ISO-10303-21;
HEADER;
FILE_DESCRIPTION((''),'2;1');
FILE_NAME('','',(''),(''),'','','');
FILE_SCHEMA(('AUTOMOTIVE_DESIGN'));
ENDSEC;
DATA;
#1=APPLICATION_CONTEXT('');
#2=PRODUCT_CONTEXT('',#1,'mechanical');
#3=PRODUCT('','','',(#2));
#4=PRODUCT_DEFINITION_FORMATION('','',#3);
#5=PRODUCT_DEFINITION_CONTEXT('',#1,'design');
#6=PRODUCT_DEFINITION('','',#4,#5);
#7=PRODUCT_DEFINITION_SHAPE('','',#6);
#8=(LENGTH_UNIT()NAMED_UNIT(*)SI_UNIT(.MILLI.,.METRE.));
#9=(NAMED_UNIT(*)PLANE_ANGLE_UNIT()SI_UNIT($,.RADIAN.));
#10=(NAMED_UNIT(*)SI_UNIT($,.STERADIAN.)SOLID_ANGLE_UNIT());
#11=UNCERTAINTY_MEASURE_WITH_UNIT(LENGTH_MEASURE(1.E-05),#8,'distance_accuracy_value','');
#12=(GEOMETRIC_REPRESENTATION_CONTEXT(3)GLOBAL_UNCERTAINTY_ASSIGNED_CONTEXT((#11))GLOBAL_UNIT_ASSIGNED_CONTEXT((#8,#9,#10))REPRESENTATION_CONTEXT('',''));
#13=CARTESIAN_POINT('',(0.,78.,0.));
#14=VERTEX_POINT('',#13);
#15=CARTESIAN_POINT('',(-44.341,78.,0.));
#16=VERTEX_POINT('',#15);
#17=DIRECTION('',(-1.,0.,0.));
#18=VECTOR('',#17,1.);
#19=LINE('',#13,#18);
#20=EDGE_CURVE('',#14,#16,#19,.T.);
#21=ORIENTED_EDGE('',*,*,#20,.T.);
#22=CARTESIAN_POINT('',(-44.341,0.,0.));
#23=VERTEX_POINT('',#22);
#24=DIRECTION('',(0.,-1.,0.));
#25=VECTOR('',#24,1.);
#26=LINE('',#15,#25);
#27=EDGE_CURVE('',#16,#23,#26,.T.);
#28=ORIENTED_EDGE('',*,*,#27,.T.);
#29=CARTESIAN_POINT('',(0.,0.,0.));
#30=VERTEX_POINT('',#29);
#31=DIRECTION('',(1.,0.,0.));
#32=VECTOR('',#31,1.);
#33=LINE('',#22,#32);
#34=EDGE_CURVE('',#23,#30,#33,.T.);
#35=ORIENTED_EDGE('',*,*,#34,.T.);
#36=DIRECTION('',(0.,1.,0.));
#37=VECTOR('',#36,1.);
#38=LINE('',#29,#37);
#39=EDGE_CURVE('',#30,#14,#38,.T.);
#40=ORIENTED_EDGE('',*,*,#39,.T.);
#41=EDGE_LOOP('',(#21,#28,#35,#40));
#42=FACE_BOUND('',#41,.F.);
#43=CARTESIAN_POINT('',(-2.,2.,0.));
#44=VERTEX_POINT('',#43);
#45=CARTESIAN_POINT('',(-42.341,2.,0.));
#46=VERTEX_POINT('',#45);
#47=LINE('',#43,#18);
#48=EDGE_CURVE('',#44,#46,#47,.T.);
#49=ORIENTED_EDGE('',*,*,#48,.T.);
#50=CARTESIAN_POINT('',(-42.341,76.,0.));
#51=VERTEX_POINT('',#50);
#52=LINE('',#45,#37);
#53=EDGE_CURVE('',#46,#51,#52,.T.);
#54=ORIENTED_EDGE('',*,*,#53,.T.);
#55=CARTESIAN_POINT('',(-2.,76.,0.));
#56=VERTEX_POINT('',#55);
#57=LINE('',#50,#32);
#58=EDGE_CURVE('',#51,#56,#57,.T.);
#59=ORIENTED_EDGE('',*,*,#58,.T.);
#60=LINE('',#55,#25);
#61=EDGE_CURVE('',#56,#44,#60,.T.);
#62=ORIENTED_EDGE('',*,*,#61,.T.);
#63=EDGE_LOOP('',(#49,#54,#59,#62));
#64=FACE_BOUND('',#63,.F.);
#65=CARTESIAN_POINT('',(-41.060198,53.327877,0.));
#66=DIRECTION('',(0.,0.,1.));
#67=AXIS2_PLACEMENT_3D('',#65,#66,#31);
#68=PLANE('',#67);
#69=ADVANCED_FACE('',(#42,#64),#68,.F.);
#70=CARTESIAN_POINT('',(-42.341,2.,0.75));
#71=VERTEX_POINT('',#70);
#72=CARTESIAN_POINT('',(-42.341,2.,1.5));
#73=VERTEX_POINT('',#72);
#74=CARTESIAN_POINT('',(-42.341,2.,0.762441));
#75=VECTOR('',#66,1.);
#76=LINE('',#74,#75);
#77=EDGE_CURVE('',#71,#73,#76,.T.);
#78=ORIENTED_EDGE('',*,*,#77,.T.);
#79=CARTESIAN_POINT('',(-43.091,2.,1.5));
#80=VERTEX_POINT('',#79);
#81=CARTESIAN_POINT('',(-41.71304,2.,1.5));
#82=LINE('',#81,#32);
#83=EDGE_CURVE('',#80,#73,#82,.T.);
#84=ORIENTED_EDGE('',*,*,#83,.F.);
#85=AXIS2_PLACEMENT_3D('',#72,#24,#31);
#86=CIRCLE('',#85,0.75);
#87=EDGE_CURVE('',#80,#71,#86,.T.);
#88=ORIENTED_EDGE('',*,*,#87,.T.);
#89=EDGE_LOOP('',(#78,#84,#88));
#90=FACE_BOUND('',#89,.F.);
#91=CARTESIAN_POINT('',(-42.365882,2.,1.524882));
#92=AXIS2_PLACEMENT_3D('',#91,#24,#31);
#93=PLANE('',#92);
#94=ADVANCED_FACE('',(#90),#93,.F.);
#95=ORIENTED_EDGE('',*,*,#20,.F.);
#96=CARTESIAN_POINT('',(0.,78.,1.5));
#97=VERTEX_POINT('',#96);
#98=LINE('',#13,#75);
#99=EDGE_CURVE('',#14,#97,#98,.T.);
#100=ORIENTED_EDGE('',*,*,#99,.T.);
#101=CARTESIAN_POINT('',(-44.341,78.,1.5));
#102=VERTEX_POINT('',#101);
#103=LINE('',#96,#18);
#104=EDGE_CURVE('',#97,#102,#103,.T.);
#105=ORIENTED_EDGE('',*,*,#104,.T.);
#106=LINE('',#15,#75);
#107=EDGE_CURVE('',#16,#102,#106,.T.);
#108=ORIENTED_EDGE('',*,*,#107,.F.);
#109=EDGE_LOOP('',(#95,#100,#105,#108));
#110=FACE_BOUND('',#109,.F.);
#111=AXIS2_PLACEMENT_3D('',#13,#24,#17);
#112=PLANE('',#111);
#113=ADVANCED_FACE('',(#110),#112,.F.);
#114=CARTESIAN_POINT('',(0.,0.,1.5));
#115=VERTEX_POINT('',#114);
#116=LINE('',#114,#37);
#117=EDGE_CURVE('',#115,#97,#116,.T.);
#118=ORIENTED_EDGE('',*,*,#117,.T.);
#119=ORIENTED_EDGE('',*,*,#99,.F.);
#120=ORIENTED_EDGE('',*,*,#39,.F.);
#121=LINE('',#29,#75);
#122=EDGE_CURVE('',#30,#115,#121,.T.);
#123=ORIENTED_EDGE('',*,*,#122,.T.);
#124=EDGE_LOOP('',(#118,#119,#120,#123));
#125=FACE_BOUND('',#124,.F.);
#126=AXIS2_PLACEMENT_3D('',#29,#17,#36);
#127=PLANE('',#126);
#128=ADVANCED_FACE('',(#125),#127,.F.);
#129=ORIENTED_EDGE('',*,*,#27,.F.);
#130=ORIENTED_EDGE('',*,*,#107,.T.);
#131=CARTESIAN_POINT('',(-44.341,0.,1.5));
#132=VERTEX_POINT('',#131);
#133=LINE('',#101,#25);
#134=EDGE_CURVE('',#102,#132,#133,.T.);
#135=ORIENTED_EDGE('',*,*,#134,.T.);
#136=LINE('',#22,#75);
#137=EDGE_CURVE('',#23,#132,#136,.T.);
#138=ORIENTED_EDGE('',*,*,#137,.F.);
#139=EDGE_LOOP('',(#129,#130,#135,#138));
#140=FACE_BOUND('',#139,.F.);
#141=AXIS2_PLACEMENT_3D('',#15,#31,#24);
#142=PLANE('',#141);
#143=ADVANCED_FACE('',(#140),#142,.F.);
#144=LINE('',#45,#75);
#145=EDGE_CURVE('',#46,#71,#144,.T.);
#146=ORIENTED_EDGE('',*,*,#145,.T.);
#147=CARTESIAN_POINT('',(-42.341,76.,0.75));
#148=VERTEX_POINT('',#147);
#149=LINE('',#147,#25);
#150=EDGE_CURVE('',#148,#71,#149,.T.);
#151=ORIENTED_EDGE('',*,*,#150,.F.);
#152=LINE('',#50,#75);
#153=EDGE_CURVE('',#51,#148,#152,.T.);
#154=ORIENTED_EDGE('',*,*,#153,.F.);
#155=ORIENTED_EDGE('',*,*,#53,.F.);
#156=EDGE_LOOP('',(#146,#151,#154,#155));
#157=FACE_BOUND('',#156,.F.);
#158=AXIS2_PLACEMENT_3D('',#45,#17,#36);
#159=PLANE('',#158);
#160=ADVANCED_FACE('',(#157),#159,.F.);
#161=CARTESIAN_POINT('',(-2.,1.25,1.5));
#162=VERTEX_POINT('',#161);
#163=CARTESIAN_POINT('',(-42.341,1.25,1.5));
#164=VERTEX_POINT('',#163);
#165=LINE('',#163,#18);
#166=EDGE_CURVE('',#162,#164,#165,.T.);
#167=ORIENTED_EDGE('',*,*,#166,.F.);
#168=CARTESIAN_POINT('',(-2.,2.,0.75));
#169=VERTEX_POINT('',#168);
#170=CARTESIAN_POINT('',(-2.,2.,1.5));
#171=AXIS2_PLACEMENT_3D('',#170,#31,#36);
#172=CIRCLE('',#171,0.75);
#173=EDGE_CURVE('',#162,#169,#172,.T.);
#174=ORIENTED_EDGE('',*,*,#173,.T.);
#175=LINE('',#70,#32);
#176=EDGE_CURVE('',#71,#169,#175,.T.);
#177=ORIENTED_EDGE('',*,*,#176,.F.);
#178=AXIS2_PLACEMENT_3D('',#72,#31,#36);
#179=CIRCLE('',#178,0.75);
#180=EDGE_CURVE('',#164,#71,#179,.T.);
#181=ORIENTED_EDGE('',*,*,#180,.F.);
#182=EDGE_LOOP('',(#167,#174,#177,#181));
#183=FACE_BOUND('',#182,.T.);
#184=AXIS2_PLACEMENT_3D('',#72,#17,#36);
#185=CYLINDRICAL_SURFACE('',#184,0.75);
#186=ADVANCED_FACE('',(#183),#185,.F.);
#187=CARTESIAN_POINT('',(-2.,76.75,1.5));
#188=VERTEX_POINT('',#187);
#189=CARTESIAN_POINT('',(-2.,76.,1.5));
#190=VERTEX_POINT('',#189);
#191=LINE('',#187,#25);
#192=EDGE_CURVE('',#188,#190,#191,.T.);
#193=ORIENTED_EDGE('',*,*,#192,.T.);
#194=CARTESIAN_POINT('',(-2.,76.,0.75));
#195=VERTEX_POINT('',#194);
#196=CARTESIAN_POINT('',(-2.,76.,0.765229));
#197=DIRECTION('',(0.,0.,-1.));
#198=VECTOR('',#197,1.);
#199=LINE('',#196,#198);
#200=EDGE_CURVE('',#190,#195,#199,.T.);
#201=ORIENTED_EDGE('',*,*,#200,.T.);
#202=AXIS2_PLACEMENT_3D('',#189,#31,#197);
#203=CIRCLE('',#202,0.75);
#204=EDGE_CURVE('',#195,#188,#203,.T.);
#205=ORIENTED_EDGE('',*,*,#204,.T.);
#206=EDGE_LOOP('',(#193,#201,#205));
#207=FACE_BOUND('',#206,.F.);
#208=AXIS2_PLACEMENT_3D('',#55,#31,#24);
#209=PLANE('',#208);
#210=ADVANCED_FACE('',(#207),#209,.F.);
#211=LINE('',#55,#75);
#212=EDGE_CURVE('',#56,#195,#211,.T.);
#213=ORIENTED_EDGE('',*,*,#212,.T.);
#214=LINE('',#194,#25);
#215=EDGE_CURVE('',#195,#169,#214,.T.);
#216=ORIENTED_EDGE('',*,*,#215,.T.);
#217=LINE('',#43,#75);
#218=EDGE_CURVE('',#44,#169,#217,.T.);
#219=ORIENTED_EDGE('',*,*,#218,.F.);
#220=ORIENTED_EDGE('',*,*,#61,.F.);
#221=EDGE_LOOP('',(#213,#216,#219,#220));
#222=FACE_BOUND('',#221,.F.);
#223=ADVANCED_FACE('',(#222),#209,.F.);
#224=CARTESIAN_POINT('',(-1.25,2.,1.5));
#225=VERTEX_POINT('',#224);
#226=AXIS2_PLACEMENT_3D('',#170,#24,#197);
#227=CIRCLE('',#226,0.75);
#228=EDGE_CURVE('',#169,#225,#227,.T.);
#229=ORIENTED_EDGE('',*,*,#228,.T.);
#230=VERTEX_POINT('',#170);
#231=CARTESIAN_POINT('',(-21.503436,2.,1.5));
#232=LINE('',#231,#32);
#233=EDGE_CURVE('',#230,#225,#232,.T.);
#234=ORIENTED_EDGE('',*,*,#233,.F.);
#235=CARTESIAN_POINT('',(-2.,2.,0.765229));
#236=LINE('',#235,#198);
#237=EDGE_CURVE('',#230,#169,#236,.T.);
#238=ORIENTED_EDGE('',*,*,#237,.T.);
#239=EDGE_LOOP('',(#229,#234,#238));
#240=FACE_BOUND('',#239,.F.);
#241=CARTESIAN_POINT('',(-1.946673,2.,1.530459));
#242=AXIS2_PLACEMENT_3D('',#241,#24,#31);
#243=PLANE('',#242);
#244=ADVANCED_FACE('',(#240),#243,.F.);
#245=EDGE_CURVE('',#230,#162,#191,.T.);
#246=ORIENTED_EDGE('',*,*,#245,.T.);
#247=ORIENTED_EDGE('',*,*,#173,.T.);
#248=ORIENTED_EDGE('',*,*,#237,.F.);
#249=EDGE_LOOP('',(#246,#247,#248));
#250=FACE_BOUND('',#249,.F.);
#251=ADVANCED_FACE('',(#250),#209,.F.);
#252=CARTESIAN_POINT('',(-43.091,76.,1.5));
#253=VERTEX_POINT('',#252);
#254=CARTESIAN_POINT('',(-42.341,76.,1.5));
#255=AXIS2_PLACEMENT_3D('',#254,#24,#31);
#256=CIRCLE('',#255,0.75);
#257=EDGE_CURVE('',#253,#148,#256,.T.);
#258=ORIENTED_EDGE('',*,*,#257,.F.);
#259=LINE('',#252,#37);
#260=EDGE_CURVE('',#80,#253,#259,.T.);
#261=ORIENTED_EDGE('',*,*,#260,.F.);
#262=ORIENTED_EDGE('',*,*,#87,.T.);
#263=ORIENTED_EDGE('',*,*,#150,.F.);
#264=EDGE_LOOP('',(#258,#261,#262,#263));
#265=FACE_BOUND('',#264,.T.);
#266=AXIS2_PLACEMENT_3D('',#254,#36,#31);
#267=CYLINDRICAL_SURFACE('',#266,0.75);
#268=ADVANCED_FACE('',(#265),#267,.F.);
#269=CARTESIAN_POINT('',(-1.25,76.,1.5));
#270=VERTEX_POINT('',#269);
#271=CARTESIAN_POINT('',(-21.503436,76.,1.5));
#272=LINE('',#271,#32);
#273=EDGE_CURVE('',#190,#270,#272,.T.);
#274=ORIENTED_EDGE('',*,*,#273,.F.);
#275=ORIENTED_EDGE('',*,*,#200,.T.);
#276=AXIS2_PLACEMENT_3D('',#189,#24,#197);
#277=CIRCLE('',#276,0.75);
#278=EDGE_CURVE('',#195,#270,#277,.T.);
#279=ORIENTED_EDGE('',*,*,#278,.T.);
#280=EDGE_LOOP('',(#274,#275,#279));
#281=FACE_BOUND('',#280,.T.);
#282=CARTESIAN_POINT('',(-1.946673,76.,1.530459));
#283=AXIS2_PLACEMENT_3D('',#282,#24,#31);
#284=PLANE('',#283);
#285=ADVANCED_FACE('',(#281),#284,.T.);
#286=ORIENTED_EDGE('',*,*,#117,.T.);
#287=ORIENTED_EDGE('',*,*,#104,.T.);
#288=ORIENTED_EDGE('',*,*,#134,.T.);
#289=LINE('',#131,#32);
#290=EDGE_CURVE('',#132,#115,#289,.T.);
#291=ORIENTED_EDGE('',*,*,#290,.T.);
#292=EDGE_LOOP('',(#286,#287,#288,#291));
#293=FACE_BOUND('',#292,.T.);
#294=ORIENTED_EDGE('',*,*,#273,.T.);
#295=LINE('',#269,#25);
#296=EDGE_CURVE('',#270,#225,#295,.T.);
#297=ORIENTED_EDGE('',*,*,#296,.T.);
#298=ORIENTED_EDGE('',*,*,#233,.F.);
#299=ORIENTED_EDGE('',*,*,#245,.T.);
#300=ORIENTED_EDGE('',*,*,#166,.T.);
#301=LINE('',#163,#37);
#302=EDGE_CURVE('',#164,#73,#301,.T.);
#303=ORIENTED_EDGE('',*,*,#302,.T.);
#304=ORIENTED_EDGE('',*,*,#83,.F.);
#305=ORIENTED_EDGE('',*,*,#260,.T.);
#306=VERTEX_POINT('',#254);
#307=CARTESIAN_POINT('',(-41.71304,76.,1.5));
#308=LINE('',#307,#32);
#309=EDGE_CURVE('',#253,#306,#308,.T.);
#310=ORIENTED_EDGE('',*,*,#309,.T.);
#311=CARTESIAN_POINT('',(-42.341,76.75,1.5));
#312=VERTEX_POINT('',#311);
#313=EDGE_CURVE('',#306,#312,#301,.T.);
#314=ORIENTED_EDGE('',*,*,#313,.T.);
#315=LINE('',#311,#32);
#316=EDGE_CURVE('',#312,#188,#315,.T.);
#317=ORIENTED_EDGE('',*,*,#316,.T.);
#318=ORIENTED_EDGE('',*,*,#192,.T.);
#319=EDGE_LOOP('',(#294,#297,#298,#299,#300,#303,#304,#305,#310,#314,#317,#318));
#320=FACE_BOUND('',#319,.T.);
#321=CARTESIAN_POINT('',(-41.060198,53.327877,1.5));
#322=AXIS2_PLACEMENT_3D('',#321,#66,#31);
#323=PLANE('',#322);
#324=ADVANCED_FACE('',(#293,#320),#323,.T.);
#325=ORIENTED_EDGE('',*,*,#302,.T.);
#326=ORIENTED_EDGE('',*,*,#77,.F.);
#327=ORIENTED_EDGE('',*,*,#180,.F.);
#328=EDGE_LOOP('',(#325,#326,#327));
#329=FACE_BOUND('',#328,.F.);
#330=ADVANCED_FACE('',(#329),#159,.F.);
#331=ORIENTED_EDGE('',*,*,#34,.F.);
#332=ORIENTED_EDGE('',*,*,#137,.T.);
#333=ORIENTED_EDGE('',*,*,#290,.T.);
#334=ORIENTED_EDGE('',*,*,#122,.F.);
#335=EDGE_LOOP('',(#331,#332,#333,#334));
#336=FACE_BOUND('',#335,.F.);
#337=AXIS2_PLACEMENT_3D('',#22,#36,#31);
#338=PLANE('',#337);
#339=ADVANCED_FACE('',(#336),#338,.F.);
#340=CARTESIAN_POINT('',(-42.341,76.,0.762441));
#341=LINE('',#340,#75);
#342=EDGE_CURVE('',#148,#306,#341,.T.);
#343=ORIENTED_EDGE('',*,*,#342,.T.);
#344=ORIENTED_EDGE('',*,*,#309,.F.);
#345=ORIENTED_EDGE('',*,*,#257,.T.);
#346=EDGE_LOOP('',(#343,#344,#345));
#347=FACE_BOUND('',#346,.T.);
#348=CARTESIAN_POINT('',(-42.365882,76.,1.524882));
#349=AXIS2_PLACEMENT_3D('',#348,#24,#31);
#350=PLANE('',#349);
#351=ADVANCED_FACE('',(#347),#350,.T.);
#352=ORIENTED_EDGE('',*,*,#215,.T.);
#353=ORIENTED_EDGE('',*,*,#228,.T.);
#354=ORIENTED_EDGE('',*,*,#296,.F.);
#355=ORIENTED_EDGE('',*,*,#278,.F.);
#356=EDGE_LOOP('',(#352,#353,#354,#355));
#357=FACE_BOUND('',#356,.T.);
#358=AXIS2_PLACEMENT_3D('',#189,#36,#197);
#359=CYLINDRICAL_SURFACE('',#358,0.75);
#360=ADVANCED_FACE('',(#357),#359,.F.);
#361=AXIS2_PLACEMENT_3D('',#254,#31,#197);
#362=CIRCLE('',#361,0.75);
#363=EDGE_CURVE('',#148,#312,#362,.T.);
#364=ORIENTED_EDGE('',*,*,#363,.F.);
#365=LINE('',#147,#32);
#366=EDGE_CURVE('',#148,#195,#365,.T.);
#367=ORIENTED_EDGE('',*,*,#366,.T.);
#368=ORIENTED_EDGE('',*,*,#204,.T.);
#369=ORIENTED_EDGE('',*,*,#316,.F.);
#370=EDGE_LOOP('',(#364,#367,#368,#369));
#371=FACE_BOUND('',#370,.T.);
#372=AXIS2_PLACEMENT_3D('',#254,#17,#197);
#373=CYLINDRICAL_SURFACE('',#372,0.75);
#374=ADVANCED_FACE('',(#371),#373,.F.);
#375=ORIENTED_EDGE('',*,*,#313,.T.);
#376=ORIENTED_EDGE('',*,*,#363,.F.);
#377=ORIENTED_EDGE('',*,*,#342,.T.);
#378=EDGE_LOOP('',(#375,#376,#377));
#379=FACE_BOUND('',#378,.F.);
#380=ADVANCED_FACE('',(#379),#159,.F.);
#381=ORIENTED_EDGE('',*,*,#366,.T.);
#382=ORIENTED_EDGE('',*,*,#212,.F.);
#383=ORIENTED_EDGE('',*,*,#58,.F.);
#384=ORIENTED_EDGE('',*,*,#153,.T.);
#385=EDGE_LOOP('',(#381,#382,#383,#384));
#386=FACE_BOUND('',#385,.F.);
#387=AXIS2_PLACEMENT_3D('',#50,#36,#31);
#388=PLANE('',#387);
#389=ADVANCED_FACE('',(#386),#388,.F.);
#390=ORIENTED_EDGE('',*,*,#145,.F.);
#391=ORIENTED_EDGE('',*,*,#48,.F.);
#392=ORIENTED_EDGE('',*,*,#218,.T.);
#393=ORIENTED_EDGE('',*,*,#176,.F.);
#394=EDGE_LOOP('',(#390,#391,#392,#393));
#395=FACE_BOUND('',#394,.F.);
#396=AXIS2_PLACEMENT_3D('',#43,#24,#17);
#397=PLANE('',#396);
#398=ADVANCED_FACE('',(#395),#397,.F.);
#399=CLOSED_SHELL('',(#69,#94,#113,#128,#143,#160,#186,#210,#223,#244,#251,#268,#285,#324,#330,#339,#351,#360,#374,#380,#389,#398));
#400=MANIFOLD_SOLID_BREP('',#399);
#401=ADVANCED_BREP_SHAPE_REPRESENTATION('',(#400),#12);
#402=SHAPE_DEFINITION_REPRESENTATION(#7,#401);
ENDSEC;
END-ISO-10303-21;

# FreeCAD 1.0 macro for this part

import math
import FreeCAD as App
import Part
import Sketcher
from FreeCAD import Vector
Q = App.Units.Quantity

doc = App.newDocument("Part")
body = doc.addObject("PartDesign::Body", "Body")

sketch1 = body.newObject("Sketcher::SketchObject", "Sketch")
sketch1.AttachmentSupport = (doc.getObject("XY_Plane"), [""])
sketch1.MapMode = "FlatFace"
sketch1.addGeometry(Part.LineSegment(Vector(-44, 78, 0), Vector(-44, 0, 0)), False)
sketch1.addGeometry(Part.LineSegment(Vector(-44, 0, 0), Vector(0, 0, 0)), False)
sketch1.addGeometry(Part.LineSegment(Vector(0, 0, 0), Vector(0, 78, 0)), False)
sketch1.addGeometry(Part.LineSegment(Vector(0, 78, 0), Vector(-44, 78, 0)), False)
sketch1.addGeometry(Part.LineSegment(Vector(-42, 76, 0), Vector(-2, 76, 0)), False)
sketch1.addGeometry(Part.LineSegment(Vector(-2, 76, 0), Vector(-2, 2, 0)), False)
sketch1.addGeometry(Part.LineSegment(Vector(-2, 2, 0), Vector(-42, 2, 0)), False)
sketch1.addGeometry(Part.LineSegment(Vector(-42, 2, 0), Vector(-42, 76, 0)), False)
sketch1.addConstraint(Sketcher.Constraint("Coincident", 0, 2, 1, 1))
sketch1.addConstraint(Sketcher.Constraint("Coincident", 1, 2, 2, 1))
sketch1.addConstraint(Sketcher.Constraint("Coincident", 2, 2, 3, 1))
sketch1.addConstraint(Sketcher.Constraint("Coincident", 3, 2, 0, 1))
sketch1.addConstraint(Sketcher.Constraint("Coincident", 4, 2, 5, 1))
sketch1.addConstraint(Sketcher.Constraint("Coincident", 5, 2, 6, 1))
sketch1.addConstraint(Sketcher.Constraint("Coincident", 6, 2, 7, 1))
sketch1.addConstraint(Sketcher.Constraint("Coincident", 7, 2, 4, 1))
sketch1.addConstraint(Sketcher.Constraint("Vertical", 0))
sketch1.addConstraint(Sketcher.Constraint("Horizontal", 1))
sketch1.addConstraint(Sketcher.Constraint("Vertical", 2))
sketch1.addConstraint(Sketcher.Constraint("Horizontal", 3))
sketch1.addConstraint(Sketcher.Constraint("Horizontal", 4))
sketch1.addConstraint(Sketcher.Constraint("Vertical", 5))
sketch1.addConstraint(Sketcher.Constraint("Horizontal", 6))
sketch1.addConstraint(Sketcher.Constraint("Vertical", 7))
sketch1.addConstraint(Sketcher.Constraint("Coincident", 1, 2, -1, 1))
sketch1.addConstraint(Sketcher.Constraint("DistanceY", 0, 2, 0, 1, Q("78 mm")))
sketch1.addConstraint(Sketcher.Constraint("DistanceY", 5, 2, 5, 1, Q("74 mm")))
sketch1.addConstraint(Sketcher.Constraint("DistanceX", 4, 2, -1, 1, Q("2 mm")))
sketch1.addConstraint(Sketcher.Constraint("DistanceY", -1, 1, 4, 2, Q("76 mm")))
sketch1.addConstraint(Sketcher.Constraint("DistanceX", 0, 2, 6, 2, Q("2 mm")))
sketch1.addConstraint(Sketcher.Constraint("DistanceX", 1, 1, 1, 2, Q("44.341 mm")))
pad1 = body.newObject("PartDesign::Pad", "Pad")
pad1.Profile = sketch1
pad1.Length = 1.5

sketch2 = body.newObject("Sketcher::SketchObject", "Sketch001")
sketch2.AttachmentSupport = (doc.getObject("YZ_Plane"), [""])
sketch2.MapMode = "FlatFace"
sketch2.AttachmentOffset = App.Placement(Vector(0, 0, -42.341), App.Rotation())
sketch2.addGeometry(Part.ArcOfCircle(Part.Circle(Vector(76, 1.5, 0), Vector(0, 0, 1), 0.8), math.radians(-90), math.radians(0)), False)
sketch2.addGeometry(Part.ArcOfCircle(Part.Circle(Vector(76, 1.5, 0), Vector(0, 0, 1), 0.8), math.radians(0), math.radians(180)), False)
sketch2.addGeometry(Part.ArcOfCircle(Part.Circle(Vector(76, 1.5, 0), Vector(0, 0, 1), 0.8), math.radians(180), math.radians(270)), False)
sketch2.addGeometry(Part.ArcOfCircle(Part.Circle(Vector(2, 1.5, 0), Vector(0, 0, 1), 0.8), math.radians(0), math.radians(270)), False)
sketch2.addGeometry(Part.ArcOfCircle(Part.Circle(Vector(2, 1.5, 0), Vector(0, 0, 1), 0.8), math.radians(-90), math.radians(0)), False)
sketch2.addConstraint(Sketcher.Constraint("Tangent", 0, 2, 1, 1))
sketch2.addConstraint(Sketcher.Constraint("Tangent", 1, 2, 2, 1))
sketch2.addConstraint(Sketcher.Constraint("Tangent", 2, 2, 0, 1))
sketch2.addConstraint(Sketcher.Constraint("Tangent", 3, 1, 4, 2))
sketch2.addConstraint(Sketcher.Constraint("Coincident", 4, 1, 3, 2))
sketch2.addConstraint(Sketcher.Constraint("Equal", 2, 3))
sketch2.addConstraint(Sketcher.Constraint("Horizontal", 2, 3, 3, 3))
sketch2.addConstraint(Sketcher.Constraint("Horizontal", 4, 3, 0, 2))
sketch2.addConstraint(Sketcher.Constraint("Horizontal", 0, 2, 1, 2))
sketch2.addConstraint(Sketcher.Constraint("Horizontal", 1, 2, 3, 1))
sketch2.addConstraint(Sketcher.Constraint("Vertical", 1, 3, 2, 2))
sketch2.addConstraint(Sketcher.Constraint("Vertical", 3, 3, 4, 1))
sketch2.addConstraint(Sketcher.Constraint("Radius", 0, Q("0.75 mm")))
sketch2.addConstraint(Sketcher.Constraint("DistanceX", -1, 1, 0, 3, Q("76 mm")))
sketch2.addConstraint(Sketcher.Constraint("DistanceX", -1, 1, 3, 3, Q("2 mm")))
sketch2.addConstraint(Sketcher.Constraint("DistanceY", -1, 1, 0, 3, Q("1.5 mm")))
pocket1 = body.newObject("PartDesign::Pocket", "Pocket")
pocket1.Profile = sketch2
pocket1.Length = 40.341
pocket1.Reversed = True

sketch3 = body.newObject("Sketcher::SketchObject", "Sketch002")
sketch3.AttachmentSupport = (doc.getObject("XZ_Plane"), [""])
sketch3.MapMode = "FlatFace"
sketch3.AttachmentOffset = App.Placement(Vector(0, 0, -76), App.Rotation())
sketch3.addGeometry(Part.ArcOfCircle(Part.Circle(Vector(-42.3, 1.5, 0), Vector(0, 0, 1), 0.8), math.radians(0), math.radians(270)), False)
sketch3.addGeometry(Part.ArcOfCircle(Part.Circle(Vector(-42.3, 1.5, 0), Vector(0, 0, 1), 0.8), math.radians(-90), math.radians(0)), False)
sketch3.addGeometry(Part.ArcOfCircle(Part.Circle(Vector(-2, 1.5, 0), Vector(0, 0, 1), 0.8), math.radians(0), math.radians(180)), False)
sketch3.addGeometry(Part.ArcOfCircle(Part.Circle(Vector(-2, 1.5, 0), Vector(0, 0, 1), 0.8), math.radians(180), math.radians(270)), False)
sketch3.addGeometry(Part.ArcOfCircle(Part.Circle(Vector(-2, 1.5, 0), Vector(0, 0, 1), 0.8), math.radians(-90), math.radians(0)), False)
sketch3.addConstraint(Sketcher.Constraint("Tangent", 0, 1, 1, 2))
sketch3.addConstraint(Sketcher.Constraint("Coincident", 1, 1, 0, 2))
sketch3.addConstraint(Sketcher.Constraint("Tangent", 2, 2, 3, 1))
sketch3.addConstraint(Sketcher.Constraint("Tangent", 3, 2, 4, 1))
sketch3.addConstraint(Sketcher.Constraint("Tangent", 4, 2, 2, 1))
sketch3.addConstraint(Sketcher.Constraint("Equal", 1, 2))
sketch3.addConstraint(Sketcher.Constraint("Horizontal", 1, 3, 2, 3))
sketch3.addConstraint(Sketcher.Constraint("Horizontal", 4, 3, 0, 1))
sketch3.addConstraint(Sketcher.Constraint("Horizontal", 0, 1, 2, 2))
sketch3.addConstraint(Sketcher.Constraint("Horizontal", 2, 2, 4, 2))
sketch3.addConstraint(Sketcher.Constraint("Vertical", 0, 3, 1, 1))
sketch3.addConstraint(Sketcher.Constraint("Vertical", 4, 3, 3, 2))
sketch3.addConstraint(Sketcher.Constraint("Radius", 0, Q("0.75 mm")))
sketch3.addConstraint(Sketcher.Constraint("DistanceX", 2, 3, -1, 1, Q("2 mm")))
sketch3.addConstraint(Sketcher.Constraint("DistanceY", -1, 1, 0, 3, Q("1.5 mm")))
sketch3.addConstraint(Sketcher.Constraint("DistanceX", 0, 3, -1, 1, Q("42.341 mm")))
pocket2 = body.newObject("PartDesign::Pocket", "Pocket001")
pocket2.Profile = sketch3
pocket2.Length = 74
pocket2.Reversed = True

doc.recompute()
